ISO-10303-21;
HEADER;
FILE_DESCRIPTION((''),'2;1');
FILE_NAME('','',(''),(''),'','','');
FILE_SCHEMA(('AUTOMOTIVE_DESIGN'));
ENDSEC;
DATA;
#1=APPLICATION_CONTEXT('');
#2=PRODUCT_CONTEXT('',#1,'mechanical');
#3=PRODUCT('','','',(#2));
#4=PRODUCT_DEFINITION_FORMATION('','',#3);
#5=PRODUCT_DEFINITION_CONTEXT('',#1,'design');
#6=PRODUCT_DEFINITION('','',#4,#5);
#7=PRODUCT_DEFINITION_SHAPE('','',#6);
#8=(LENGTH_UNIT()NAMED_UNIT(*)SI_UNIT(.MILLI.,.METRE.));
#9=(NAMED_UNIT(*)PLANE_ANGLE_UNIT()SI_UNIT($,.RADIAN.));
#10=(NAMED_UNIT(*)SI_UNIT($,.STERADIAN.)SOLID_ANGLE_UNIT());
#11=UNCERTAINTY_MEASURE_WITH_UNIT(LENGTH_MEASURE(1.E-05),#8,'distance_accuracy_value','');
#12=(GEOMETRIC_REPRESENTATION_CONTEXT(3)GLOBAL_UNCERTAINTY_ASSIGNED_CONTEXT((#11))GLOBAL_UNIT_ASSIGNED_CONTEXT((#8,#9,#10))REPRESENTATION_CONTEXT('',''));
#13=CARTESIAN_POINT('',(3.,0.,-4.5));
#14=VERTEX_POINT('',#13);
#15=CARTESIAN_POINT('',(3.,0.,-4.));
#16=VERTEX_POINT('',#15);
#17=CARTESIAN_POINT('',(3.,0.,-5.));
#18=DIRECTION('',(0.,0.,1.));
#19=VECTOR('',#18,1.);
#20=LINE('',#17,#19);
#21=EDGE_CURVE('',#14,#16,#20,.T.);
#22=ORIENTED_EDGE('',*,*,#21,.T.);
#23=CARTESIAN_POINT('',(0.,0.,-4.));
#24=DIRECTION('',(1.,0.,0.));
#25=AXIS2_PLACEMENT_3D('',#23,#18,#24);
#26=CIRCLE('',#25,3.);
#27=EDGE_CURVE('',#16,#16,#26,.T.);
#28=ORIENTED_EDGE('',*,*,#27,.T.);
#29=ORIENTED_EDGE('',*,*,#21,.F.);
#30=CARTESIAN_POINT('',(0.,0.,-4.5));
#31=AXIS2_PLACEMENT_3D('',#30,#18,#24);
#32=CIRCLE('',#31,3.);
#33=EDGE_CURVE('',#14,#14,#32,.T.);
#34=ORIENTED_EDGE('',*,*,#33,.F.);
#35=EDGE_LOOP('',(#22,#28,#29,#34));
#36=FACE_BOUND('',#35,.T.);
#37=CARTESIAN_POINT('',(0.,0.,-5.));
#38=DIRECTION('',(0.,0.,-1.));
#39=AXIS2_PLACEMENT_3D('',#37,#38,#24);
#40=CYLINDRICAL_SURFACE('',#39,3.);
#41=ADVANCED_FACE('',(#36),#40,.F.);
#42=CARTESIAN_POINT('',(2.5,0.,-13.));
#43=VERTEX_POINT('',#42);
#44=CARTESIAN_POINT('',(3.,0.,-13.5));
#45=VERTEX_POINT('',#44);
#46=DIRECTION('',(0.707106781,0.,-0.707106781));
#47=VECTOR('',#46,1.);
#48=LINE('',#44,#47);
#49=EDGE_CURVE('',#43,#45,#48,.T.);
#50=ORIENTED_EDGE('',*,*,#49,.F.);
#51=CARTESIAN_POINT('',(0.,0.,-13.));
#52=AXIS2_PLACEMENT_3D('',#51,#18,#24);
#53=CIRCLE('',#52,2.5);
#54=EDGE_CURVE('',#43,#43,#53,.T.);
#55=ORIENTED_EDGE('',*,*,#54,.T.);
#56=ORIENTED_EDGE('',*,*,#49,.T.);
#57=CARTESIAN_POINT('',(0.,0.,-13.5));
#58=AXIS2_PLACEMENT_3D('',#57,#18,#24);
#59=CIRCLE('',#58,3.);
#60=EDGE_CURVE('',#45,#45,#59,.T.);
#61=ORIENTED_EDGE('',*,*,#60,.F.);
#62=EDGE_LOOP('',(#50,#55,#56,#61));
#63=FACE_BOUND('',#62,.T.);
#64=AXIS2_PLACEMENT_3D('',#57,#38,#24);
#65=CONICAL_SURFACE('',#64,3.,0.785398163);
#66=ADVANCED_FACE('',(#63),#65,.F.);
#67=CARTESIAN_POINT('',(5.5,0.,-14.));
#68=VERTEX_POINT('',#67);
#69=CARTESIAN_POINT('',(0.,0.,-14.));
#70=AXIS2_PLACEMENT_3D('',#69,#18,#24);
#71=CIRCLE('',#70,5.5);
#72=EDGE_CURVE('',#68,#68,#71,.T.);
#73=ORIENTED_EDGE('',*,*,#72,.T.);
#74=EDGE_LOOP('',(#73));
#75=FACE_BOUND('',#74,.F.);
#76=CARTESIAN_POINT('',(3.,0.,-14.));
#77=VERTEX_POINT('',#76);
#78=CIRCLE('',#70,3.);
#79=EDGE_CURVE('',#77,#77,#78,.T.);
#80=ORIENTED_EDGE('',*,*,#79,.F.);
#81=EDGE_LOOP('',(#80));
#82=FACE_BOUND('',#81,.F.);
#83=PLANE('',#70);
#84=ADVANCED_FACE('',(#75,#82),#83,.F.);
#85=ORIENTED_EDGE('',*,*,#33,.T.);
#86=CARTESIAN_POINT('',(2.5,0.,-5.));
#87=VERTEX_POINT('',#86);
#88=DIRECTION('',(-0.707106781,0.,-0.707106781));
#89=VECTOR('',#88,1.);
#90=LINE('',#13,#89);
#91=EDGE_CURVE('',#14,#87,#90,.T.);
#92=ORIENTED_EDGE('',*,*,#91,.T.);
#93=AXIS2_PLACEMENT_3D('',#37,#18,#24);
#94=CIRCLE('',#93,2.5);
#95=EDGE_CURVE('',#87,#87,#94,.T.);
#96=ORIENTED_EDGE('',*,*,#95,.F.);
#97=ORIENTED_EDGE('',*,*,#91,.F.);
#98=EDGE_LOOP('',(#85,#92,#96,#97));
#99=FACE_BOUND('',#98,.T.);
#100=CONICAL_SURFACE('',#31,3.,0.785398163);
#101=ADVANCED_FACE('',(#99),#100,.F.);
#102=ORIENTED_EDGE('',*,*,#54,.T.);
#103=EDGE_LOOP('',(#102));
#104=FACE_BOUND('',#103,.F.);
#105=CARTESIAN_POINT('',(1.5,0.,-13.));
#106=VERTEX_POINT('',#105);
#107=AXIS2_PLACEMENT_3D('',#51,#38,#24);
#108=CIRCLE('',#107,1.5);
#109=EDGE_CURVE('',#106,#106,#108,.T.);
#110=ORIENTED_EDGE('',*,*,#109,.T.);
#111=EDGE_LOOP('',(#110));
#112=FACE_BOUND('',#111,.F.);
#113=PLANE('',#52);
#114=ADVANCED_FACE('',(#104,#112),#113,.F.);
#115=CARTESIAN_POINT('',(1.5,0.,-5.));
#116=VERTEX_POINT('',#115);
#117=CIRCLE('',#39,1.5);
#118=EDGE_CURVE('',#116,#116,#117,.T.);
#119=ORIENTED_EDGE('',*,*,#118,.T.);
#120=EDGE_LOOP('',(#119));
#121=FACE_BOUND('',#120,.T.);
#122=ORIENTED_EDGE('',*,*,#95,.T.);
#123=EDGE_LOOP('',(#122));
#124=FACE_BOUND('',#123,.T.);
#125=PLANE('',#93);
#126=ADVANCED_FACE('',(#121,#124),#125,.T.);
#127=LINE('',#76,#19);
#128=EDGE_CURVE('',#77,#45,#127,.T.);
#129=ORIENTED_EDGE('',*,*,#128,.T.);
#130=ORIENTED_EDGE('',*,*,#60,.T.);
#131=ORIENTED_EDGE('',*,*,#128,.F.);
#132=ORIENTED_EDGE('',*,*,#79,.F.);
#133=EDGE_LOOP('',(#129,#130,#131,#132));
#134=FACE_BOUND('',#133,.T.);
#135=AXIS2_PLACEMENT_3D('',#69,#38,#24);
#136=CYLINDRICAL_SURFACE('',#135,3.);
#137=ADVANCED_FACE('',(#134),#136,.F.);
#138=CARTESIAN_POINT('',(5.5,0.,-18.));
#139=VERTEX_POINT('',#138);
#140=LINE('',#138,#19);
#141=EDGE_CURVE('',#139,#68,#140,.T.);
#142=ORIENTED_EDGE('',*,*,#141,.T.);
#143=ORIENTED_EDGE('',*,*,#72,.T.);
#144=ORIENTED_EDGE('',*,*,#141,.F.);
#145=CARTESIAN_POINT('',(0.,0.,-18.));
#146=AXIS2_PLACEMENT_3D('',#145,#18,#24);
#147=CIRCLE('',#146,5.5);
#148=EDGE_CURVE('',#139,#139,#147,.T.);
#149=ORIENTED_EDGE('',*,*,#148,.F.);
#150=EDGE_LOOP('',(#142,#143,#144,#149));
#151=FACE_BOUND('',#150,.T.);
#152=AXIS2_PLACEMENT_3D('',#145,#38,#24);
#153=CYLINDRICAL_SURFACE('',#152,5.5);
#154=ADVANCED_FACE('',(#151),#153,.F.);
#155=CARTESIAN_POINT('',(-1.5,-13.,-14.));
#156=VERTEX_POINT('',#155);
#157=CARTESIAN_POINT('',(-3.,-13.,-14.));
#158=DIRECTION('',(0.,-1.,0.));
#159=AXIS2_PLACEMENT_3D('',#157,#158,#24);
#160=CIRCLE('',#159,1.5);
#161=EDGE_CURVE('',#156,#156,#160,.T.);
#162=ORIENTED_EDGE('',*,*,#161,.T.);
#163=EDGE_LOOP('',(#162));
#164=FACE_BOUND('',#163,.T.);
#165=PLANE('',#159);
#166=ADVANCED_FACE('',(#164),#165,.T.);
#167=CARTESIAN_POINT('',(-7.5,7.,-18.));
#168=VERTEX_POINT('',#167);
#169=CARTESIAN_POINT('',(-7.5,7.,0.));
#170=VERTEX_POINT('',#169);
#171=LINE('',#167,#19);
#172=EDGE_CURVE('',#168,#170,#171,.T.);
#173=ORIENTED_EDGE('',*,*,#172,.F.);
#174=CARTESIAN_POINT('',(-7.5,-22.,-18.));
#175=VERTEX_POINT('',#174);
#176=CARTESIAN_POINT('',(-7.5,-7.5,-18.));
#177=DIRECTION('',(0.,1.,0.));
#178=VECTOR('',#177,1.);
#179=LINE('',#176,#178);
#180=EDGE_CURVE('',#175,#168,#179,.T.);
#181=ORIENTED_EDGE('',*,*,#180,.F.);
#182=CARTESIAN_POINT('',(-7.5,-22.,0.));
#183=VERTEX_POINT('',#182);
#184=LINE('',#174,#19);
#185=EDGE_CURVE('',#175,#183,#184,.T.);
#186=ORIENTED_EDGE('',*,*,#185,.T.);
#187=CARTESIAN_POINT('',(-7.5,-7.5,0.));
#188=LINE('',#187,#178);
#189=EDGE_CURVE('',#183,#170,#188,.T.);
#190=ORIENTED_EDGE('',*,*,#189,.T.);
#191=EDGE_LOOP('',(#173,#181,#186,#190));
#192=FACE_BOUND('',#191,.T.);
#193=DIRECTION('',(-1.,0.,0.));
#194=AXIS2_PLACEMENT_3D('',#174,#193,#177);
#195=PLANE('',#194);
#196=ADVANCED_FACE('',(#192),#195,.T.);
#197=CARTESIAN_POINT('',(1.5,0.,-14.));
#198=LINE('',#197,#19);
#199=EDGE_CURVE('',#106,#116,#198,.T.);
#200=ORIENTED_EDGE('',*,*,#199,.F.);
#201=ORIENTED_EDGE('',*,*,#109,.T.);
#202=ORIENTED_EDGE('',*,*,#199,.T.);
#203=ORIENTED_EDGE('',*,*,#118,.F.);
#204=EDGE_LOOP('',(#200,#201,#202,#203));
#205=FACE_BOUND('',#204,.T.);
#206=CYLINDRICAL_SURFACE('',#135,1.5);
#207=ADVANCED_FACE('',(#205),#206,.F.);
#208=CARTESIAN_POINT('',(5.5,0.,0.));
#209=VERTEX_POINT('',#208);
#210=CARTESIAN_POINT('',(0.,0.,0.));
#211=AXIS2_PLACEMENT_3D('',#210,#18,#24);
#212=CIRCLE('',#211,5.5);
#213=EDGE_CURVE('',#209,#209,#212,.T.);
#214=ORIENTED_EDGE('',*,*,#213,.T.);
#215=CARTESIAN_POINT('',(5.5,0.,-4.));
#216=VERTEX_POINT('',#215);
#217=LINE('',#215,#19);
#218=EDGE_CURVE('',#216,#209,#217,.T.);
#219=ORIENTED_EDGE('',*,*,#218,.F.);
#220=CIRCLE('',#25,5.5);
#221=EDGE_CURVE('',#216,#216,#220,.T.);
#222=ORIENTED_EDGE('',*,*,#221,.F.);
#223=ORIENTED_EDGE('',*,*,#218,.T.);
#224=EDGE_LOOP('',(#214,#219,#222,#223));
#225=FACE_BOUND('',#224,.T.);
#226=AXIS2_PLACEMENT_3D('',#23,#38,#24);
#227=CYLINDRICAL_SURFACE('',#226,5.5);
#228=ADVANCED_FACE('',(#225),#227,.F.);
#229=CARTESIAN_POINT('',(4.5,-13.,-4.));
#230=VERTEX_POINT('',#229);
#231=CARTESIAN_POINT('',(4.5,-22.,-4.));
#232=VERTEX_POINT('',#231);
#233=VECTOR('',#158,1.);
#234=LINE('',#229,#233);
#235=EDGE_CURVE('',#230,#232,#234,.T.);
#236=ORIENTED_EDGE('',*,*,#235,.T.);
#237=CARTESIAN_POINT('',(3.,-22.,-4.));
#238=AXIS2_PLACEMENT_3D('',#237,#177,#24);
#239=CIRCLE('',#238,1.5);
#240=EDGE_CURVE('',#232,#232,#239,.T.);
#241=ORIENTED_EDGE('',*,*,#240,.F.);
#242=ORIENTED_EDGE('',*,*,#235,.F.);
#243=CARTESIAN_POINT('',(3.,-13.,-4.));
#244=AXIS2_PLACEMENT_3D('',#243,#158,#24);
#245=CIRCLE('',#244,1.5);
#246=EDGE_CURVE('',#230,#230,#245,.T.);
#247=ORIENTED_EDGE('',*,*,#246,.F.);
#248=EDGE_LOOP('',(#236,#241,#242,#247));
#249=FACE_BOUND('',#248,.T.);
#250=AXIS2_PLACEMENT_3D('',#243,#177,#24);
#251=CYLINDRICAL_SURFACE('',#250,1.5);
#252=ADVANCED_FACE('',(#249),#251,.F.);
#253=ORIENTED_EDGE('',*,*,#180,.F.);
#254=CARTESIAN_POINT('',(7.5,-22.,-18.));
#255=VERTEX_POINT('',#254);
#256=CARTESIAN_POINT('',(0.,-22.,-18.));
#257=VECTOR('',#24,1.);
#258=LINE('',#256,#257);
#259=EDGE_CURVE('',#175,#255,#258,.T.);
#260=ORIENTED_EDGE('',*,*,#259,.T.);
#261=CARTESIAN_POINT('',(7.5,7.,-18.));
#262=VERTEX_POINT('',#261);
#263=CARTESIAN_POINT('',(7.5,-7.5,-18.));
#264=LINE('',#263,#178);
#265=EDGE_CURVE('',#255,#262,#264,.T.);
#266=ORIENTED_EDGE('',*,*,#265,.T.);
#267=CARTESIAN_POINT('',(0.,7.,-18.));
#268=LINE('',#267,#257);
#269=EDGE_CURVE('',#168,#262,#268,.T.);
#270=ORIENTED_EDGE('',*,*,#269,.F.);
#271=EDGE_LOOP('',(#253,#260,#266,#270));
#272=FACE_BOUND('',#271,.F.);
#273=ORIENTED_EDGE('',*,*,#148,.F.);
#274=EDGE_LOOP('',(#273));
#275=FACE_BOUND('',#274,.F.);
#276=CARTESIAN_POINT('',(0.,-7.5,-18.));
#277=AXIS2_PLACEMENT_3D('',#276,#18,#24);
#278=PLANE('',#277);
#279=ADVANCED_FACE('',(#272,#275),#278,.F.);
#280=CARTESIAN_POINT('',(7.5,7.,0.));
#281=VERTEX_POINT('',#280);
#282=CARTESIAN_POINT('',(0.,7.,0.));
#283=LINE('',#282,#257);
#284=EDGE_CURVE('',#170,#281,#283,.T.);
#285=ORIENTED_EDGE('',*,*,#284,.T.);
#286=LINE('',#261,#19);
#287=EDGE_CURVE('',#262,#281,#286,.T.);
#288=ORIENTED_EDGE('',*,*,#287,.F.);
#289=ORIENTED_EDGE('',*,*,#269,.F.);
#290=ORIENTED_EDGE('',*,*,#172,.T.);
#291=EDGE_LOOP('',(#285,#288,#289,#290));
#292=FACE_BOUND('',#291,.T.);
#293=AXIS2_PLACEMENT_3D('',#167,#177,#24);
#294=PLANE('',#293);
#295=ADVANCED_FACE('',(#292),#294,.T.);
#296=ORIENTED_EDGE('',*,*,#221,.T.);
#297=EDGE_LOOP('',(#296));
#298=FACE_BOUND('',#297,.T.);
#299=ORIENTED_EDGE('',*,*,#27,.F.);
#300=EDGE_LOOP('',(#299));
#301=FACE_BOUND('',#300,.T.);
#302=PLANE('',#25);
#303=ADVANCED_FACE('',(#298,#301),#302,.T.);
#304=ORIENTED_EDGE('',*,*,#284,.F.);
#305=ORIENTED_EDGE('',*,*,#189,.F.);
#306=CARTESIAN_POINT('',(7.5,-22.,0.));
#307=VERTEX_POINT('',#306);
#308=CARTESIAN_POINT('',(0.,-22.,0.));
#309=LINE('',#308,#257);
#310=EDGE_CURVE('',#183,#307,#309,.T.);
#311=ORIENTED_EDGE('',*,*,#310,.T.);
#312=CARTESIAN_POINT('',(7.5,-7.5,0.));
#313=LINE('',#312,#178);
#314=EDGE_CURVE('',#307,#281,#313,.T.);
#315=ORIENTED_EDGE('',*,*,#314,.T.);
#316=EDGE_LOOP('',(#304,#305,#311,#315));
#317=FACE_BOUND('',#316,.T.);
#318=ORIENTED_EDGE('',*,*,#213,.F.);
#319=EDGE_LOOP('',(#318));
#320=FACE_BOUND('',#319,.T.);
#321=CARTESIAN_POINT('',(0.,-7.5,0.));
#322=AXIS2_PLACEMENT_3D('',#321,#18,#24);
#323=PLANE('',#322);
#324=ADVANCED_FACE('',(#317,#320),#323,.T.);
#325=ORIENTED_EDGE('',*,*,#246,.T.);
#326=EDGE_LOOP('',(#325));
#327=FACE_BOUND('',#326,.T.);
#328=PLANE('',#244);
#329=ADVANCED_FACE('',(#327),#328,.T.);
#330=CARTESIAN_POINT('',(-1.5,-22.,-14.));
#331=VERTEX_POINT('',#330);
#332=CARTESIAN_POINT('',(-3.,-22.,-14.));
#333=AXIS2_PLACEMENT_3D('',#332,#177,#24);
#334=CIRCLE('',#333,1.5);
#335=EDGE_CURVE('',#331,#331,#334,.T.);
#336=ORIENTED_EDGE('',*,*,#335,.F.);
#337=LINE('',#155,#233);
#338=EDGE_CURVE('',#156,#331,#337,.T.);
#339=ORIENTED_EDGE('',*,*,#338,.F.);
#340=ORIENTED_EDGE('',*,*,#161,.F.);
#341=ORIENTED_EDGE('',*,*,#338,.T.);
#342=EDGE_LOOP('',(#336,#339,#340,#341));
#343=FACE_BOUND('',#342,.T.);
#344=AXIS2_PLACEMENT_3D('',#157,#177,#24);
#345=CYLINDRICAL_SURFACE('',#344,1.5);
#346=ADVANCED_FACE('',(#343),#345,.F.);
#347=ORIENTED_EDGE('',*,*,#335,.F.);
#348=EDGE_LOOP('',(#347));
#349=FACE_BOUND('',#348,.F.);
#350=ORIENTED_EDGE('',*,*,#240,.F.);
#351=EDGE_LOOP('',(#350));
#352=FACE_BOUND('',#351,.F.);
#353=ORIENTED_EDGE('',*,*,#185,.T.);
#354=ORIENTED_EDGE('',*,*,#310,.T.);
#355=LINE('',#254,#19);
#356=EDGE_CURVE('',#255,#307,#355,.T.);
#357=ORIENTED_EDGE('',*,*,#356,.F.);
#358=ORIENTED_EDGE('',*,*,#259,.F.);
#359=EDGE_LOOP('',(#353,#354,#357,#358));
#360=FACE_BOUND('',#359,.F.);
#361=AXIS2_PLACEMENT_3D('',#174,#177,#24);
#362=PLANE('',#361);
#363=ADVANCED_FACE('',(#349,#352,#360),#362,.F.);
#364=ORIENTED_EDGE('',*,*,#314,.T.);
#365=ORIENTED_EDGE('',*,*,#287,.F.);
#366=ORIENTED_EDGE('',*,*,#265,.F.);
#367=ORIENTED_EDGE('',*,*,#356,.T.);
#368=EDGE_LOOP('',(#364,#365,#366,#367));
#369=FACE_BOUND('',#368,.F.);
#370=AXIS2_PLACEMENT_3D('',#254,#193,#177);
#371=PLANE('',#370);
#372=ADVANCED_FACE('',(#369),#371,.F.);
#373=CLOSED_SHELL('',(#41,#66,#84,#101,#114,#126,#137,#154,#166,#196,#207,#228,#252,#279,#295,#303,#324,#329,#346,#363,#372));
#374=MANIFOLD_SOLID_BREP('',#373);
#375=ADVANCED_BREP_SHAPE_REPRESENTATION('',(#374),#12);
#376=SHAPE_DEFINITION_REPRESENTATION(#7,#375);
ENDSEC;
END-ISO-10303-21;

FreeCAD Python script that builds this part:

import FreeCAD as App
import Part
import Sketcher
Q = App.Units.Quantity


def edges_at(feature, points):
    """Names of the edges that pass closest to the given points."""
    edges = feature.Shape.Edges
    near = lambda p: min(range(len(edges)), key=lambda i: edges[i].distToShape(Part.Vertex(*p))[0])
    return sorted({f"Edge{near(p) + 1}" for p in points})

doc = App.newDocument("Part")
body = doc.addObject("PartDesign::Body", "Body")

# Sketch on XZ plane
sketch1 = body.newObject("Sketcher::SketchObject", "Sketch")
sketch1.AttachmentSupport = (doc.getObject("XZ_Plane"), [""])
sketch1.MapMode = "FlatFace"
sketch1.AttachmentOffset = App.Placement(App.Vector(0, 0, 13), App.Rotation())
sketch1.addGeometry(Part.Circle(App.Vector(3, -4, 0), App.Vector(0, 0, 1), 1.5), False)
sketch1.addConstraint(Sketcher.Constraint("Diameter", 0, Q("3 mm")))
sketch1.addConstraint(Sketcher.Constraint("DistanceX", -1, 1, 0, 3, Q("3 mm")))
sketch1.addConstraint(Sketcher.Constraint("DistanceY", 0, 3, -1, 1, Q("4 mm")))
pad1 = body.newObject("PartDesign::Pad", "Pad")
pad1.Profile = sketch1
pad1.Length = 21
body2 = doc.addObject("PartDesign::Body", "Body001")
body2.AllowCompound = True

# Sketch on XZ plane
sketch2 = body2.newObject("Sketcher::SketchObject", "Sketch001")
sketch2.AttachmentSupport = (doc.getObject("XZ_Plane001"), [""])
sketch2.MapMode = "FlatFace"
sketch2.AttachmentOffset = App.Placement(App.Vector(0, 0, 13), App.Rotation())
sketch2.addGeometry(Part.Circle(App.Vector(-3, -14, 0), App.Vector(0, 0, 1), 1.5), False)
sketch2.addConstraint(Sketcher.Constraint("Diameter", 0, Q("3 mm")))
sketch2.addConstraint(Sketcher.Constraint("DistanceX", 0, 3, -1, 1, Q("3 mm")))
sketch2.addConstraint(Sketcher.Constraint("DistanceY", 0, 3, -1, 1, Q("14 mm")))
pad2 = body2.newObject("PartDesign::Pad", "Pad001")
pad2.Profile = sketch2
pad2.Length = 21
doc.recompute()

boolean = body2.newObject("PartDesign::Boolean", "Boolean")
boolean.Type = "Fuse"
boolean.addObjects([body])
body3 = doc.addObject("PartDesign::Body", "Body002")

# Sketch on XY plane
sketch3 = body3.newObject("Sketcher::SketchObject", "Sketch002")
sketch3.AttachmentSupport = (doc.getObject("XY_Plane002"), [""])
sketch3.MapMode = "FlatFace"
sketch3.AttachmentOffset = App.Placement(App.Vector(0, 0, -14), App.Rotation())
sketch3.addGeometry(Part.Circle(App.Vector(0, 0, 0), App.Vector(0, 0, 1), 1.5), False)
sketch3.addConstraint(Sketcher.Constraint("Coincident", 0, 3, -1, 1))
sketch3.addConstraint(Sketcher.Constraint("Diameter", 0, Q("3 mm")))
pad3 = body3.newObject("PartDesign::Pad", "Pad002")
pad3.Profile = sketch3
pad3.Length = 12
body4 = doc.addObject("PartDesign::Body", "Body003")

# Sketch on XY plane
sketch4 = body4.newObject("Sketcher::SketchObject", "Sketch003")
sketch4.AttachmentSupport = (doc.getObject("XY_Plane003"), [""])
sketch4.MapMode = "FlatFace"
sketch4.AttachmentOffset = App.Placement(App.Vector(0, 0, -5), App.Rotation())
sketch4.addGeometry(Part.Circle(App.Vector(0, 0, 0), App.Vector(0, 0, 1), 3), False)
sketch4.addConstraint(Sketcher.Constraint("Coincident", 0, 3, -1, 1))
sketch4.addConstraint(Sketcher.Constraint("Diameter", 0, Q("6 mm")))
pad4 = body4.newObject("PartDesign::Pad", "Pad003")
pad4.Profile = sketch4
pad4.Length = 1
body5 = doc.addObject("PartDesign::Body", "Body004")
body5.AllowCompound = True

# Sketch on XY plane
sketch5 = body5.newObject("Sketcher::SketchObject", "Sketch004")
sketch5.AttachmentSupport = (doc.getObject("XY_Plane004"), [""])
sketch5.MapMode = "FlatFace"
sketch5.AttachmentOffset = App.Placement(App.Vector(0, 0, -14), App.Rotation())
sketch5.addGeometry(Part.Circle(App.Vector(0, 0, 0), App.Vector(0, 0, 1), 3), False)
sketch5.addConstraint(Sketcher.Constraint("Coincident", 0, 3, -1, 1))
sketch5.addConstraint(Sketcher.Constraint("Diameter", 0, Q("6 mm")))
pad5 = body5.newObject("PartDesign::Pad", "Pad004")
pad5.Profile = sketch5
pad5.Length = 1
doc.recompute()

boolean2 = body5.newObject("PartDesign::Boolean", "Boolean001")
boolean2.Type = "Fuse"
boolean2.addObjects([body4])
body6 = doc.addObject("PartDesign::Body", "Body005")

# Sketch on XY plane
sketch6 = body6.newObject("Sketcher::SketchObject", "Sketch005")
sketch6.AttachmentSupport = (doc.getObject("XY_Plane005"), [""])
sketch6.MapMode = "FlatFace"
sketch6.AttachmentOffset = App.Placement(App.Vector(0, 0, -18), App.Rotation())
sketch6.addGeometry(Part.Circle(App.Vector(0, 0, 0), App.Vector(0, 0, 1), 6), False)
sketch6.addConstraint(Sketcher.Constraint("Coincident", 0, 3, -1, 1))
sketch6.addConstraint(Sketcher.Constraint("Diameter", 0, Q("11 mm")))
pad6 = body6.newObject("PartDesign::Pad", "Pad005")
pad6.Profile = sketch6
pad6.Length = 4
body7 = doc.addObject("PartDesign::Body", "Body006")
body7.AllowCompound = True

# Sketch on XY plane
sketch7 = body7.newObject("Sketcher::SketchObject", "Sketch006")
sketch7.AttachmentSupport = (doc.getObject("XY_Plane006"), [""])
sketch7.MapMode = "FlatFace"
sketch7.AttachmentOffset = App.Placement(App.Vector(0, 0, -4), App.Rotation())
sketch7.addGeometry(Part.Circle(App.Vector(0, 0, 0), App.Vector(0, 0, 1), 6), False)
sketch7.addConstraint(Sketcher.Constraint("Coincident", 0, 3, -1, 1))
sketch7.addConstraint(Sketcher.Constraint("Diameter", 0, Q("11 mm")))
pad7 = body7.newObject("PartDesign::Pad", "Pad006")
pad7.Profile = sketch7
pad7.Length = 4
doc.recompute()

boolean3 = body7.newObject("PartDesign::Boolean", "Boolean002")
boolean3.Type = "Fuse"
boolean3.addObjects([body6])
body8 = doc.addObject("PartDesign::Body", "Body007")

# Sketch on XY plane
sketch8 = body8.newObject("Sketcher::SketchObject", "Sketch007")
sketch8.AttachmentSupport = (doc.getObject("XY_Plane007"), [""])
sketch8.MapMode = "FlatFace"
sketch8.AttachmentOffset = App.Placement(App.Vector(0, 0, -18), App.Rotation())
sketch8.addGeometry(Part.LineSegment(App.Vector(-8, 7, 0), App.Vector(-8, -22, 0)), False)
sketch8.addGeometry(Part.LineSegment(App.Vector(-8, -22, 0), App.Vector(8, -22, 0)), False)
sketch8.addGeometry(Part.LineSegment(App.Vector(8, -22, 0), App.Vector(8, 7, 0)), False)
sketch8.addGeometry(Part.LineSegment(App.Vector(8, 7, 0), App.Vector(-8, 7, 0)), False)
sketch8.addConstraint(Sketcher.Constraint("Coincident", 0, 2, 1, 1))
sketch8.addConstraint(Sketcher.Constraint("Coincident", 1, 2, 2, 1))
sketch8.addConstraint(Sketcher.Constraint("Coincident", 2, 2, 3, 1))
sketch8.addConstraint(Sketcher.Constraint("Coincident", 3, 2, 0, 1))
sketch8.addConstraint(Sketcher.Constraint("Vertical", 0))
sketch8.addConstraint(Sketcher.Constraint("Horizontal", 1))
sketch8.addConstraint(Sketcher.Constraint("Vertical", 2))
sketch8.addConstraint(Sketcher.Constraint("Horizontal", 3))
sketch8.addConstraint(Sketcher.Constraint("DistanceX", 1, 1, 1, 2, Q("15 mm")))
sketch8.addConstraint(Sketcher.Constraint("DistanceY", 0, 2, 0, 1, Q("29 mm")))
sketch8.addConstraint(Sketcher.Constraint("DistanceY", 0, 2, -1, 1, Q("22 mm")))
sketch8.addConstraint(Sketcher.Constraint("DistanceX", 0, 2, -1, 1, Q("7.5 mm")))
pad8 = body8.newObject("PartDesign::Pad", "Pad007")
pad8.Profile = sketch8
pad8.Length = 18
doc.recompute()

boolean4 = body8.newObject("PartDesign::Boolean", "Boolean003")
boolean4.Type = "Cut"
boolean4.addObjects([body7])
doc.recompute()

boolean5 = body8.newObject("PartDesign::Boolean", "Boolean004")
boolean5.Type = "Cut"
boolean5.addObjects([body5])
doc.recompute()

boolean6 = body8.newObject("PartDesign::Boolean", "Boolean005")
boolean6.Type = "Cut"
boolean6.addObjects([body3])
doc.recompute()

chamfer = body8.newObject("PartDesign::Chamfer", "Chamfer")
chamfer.Base = (boolean6, edges_at(boolean6, [(-3, 0, -5)]))
chamfer.Size = 0.5
doc.recompute()

chamfer2 = body8.newObject("PartDesign::Chamfer", "Chamfer001")
chamfer2.Base = (chamfer, edges_at(chamfer, [(-3, 0, -13)]))
chamfer2.Size = 0.5
doc.recompute()

boolean7 = body8.newObject("PartDesign::Boolean", "Boolean006")
boolean7.Type = "Cut"
boolean7.addObjects([body2])

doc.recompute()
